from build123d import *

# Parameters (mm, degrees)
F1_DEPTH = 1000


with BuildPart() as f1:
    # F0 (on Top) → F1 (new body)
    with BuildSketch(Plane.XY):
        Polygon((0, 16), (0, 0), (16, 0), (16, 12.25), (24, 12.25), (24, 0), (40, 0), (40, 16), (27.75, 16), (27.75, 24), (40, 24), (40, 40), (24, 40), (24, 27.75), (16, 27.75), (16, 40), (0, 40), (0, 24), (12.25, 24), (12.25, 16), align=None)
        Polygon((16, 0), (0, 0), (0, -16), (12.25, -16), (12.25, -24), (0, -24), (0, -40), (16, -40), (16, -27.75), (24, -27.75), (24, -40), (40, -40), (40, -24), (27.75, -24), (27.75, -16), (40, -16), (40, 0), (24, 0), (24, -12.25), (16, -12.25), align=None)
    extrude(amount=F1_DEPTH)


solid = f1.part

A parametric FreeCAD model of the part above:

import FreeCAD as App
import Part
import Sketcher


def add_polygon(sketch, points):
    """Adds a closed chain of lines whose ends are joined by coincident constraints."""
    first, n = sketch.GeometryCount, len(points)
    for a, b in zip(points, points[1:] + points[:1]):
        sketch.addGeometry(Part.LineSegment(App.Vector(*a, 0), App.Vector(*b, 0)), False)
    for i in range(n):
        sketch.addConstraint(Sketcher.Constraint("Coincident", first + i, 2, first + (i + 1) % n, 1))

doc = App.newDocument("Part")
params = doc.addObject("Spreadsheet::Sheet", "Params")
for row, (alias, value) in enumerate([
    ("sketch1_width", "16 mm"),
    ("sketch1_width2", "8 mm"),
    ("sketch1_height", "32 mm"),
    ("sketch1_height2", "24.5 mm"),
    ("sketch1_width3", "12.25 mm"),
    ("pad1_length", "1000 mm"),
], start=1):
    params.set(f"A{row}", alias)
    params.set(f"B{row}", "=" + value)
    params.setAlias(f"B{row}", alias)

body = doc.addObject("PartDesign::Body", "Body")

# Sketch on XY plane
sketch1 = body.newObject("Sketcher::SketchObject", "Sketch")
sketch1.AttachmentSupport = (doc.getObject("XY_Plane"), [""])
sketch1.MapMode = "FlatFace"
add_polygon(sketch1, [(0, 16), (0, -16), (12, -16), (12, -24), (0, -24), (0, -40), (16, -40), (16, -28), (24, -28), (24, -40), (40, -40), (40, -24), (28, -24), (28, -16), (40, -16), (40, 16), (28, 16), (28, 24), (40, 24), (40, 40), (24, 40), (24, 28), (16, 28), (16, 40), (0, 40), (0, 24), (12, 24), (12, 16)])  # lines 0-27
add_polygon(sketch1, [(16, 12), (24, 12), (24, -12), (16, -12)])  # lines 28-31
sketch1.addConstraint([
    Sketcher.Constraint("Vertical", 0),
    Sketcher.Constraint("Horizontal", 1),
    Sketcher.Constraint("Vertical", 2),
    Sketcher.Constraint("Horizontal", 3),
    Sketcher.Constraint("Vertical", 4),
    Sketcher.Constraint("Horizontal", 5),
    Sketcher.Constraint("Vertical", 6),
    Sketcher.Constraint("Horizontal", 7),
    Sketcher.Constraint("Vertical", 8),
    Sketcher.Constraint("Horizontal", 9),
    Sketcher.Constraint("Vertical", 10),
    Sketcher.Constraint("Horizontal", 11),
    Sketcher.Constraint("Vertical", 12),
    Sketcher.Constraint("Horizontal", 13),
    Sketcher.Constraint("Vertical", 14),
    Sketcher.Constraint("Horizontal", 15),
    Sketcher.Constraint("Vertical", 16),
    Sketcher.Constraint("Horizontal", 17),
    Sketcher.Constraint("Vertical", 18),
    Sketcher.Constraint("Horizontal", 19),
    Sketcher.Constraint("Vertical", 20),
    Sketcher.Constraint("Horizontal", 21),
    Sketcher.Constraint("Vertical", 22),
    Sketcher.Constraint("Horizontal", 23),
    Sketcher.Constraint("Vertical", 24),
    Sketcher.Constraint("Horizontal", 25),
    Sketcher.Constraint("Vertical", 26),
    Sketcher.Constraint("Horizontal", 27),
    Sketcher.Constraint("Horizontal", 28),
    Sketcher.Constraint("Vertical", 29),
    Sketcher.Constraint("Horizontal", 30),
    Sketcher.Constraint("Vertical", 31),
    Sketcher.Constraint("Symmetric", 4, 2, 23, 2, -1, 1),
    Sketcher.Constraint("Symmetric", 0, 2, 27, 2, -1, 1),
    Sketcher.Constraint("Symmetric", 12, 2, 15, 2, -1),
    Sketcher.Constraint("Symmetric", 10, 2, 17, 2, -1),
    Sketcher.Constraint("Symmetric", 8, 2, 19, 2, -1),
    Sketcher.Constraint("Symmetric", 6, 2, 21, 2, -1),
    Sketcher.Constraint("Symmetric", 3, 2, 24, 2, -1),
    Sketcher.Constraint("Horizontal", 5, 2, 8, 2),
    Sketcher.Constraint("Horizontal", 3, 2, 10, 2),
    Sketcher.Constraint("Horizontal", 1, 2, 12, 2),
    Sketcher.Constraint("Vertical", 10, 2, 13, 2),
    Sketcher.Constraint("Vertical", 2, 2, 25, 2),
    Sketcher.Constraint("Vertical", 20, 2, 28, 2),
    Sketcher.Constraint("Vertical", 22, 2, 30, 2),
    Sketcher.Constraint("Equal", 5, 9),
    Sketcher.Constraint("Equal", 3, 11),
    Sketcher.Constraint("Equal", 30, 2),
    Sketcher.Constraint("Equal", 23, 4),
    Sketcher.Constraint("Equal", 27, 6),
    Sketcher.Constraint("DistanceX", 5, 1, 5, 2, 16.0),
    Sketcher.Constraint("DistanceX", 7, 1, 7, 2, 8.0),
    Sketcher.Constraint("DistanceY", 0, 2, 0, 1, 32.0),
    Sketcher.Constraint("DistanceY", 29, 2, 29, 1, 24.5),
    Sketcher.Constraint("DistanceX", 1, 1, 1, 2, 12.25),
    Sketcher.Constraint("DistanceY", 28, 2, 20, 2, 15.5),
])
sketch1.setExpression("Constraints[83]", "Params.sketch1_width")
sketch1.setExpression("Constraints[84]", "Params.sketch1_width2")
sketch1.setExpression("Constraints[85]", "Params.sketch1_height")
sketch1.setExpression("Constraints[86]", "Params.sketch1_height2")
sketch1.setExpression("Constraints[87]", "Params.sketch1_width3")
pad1 = body.newObject("PartDesign::Pad", "Pad")
pad1.Profile = sketch1
pad1.setExpression("Length", "Params.pad1_length")

doc.recompute()
